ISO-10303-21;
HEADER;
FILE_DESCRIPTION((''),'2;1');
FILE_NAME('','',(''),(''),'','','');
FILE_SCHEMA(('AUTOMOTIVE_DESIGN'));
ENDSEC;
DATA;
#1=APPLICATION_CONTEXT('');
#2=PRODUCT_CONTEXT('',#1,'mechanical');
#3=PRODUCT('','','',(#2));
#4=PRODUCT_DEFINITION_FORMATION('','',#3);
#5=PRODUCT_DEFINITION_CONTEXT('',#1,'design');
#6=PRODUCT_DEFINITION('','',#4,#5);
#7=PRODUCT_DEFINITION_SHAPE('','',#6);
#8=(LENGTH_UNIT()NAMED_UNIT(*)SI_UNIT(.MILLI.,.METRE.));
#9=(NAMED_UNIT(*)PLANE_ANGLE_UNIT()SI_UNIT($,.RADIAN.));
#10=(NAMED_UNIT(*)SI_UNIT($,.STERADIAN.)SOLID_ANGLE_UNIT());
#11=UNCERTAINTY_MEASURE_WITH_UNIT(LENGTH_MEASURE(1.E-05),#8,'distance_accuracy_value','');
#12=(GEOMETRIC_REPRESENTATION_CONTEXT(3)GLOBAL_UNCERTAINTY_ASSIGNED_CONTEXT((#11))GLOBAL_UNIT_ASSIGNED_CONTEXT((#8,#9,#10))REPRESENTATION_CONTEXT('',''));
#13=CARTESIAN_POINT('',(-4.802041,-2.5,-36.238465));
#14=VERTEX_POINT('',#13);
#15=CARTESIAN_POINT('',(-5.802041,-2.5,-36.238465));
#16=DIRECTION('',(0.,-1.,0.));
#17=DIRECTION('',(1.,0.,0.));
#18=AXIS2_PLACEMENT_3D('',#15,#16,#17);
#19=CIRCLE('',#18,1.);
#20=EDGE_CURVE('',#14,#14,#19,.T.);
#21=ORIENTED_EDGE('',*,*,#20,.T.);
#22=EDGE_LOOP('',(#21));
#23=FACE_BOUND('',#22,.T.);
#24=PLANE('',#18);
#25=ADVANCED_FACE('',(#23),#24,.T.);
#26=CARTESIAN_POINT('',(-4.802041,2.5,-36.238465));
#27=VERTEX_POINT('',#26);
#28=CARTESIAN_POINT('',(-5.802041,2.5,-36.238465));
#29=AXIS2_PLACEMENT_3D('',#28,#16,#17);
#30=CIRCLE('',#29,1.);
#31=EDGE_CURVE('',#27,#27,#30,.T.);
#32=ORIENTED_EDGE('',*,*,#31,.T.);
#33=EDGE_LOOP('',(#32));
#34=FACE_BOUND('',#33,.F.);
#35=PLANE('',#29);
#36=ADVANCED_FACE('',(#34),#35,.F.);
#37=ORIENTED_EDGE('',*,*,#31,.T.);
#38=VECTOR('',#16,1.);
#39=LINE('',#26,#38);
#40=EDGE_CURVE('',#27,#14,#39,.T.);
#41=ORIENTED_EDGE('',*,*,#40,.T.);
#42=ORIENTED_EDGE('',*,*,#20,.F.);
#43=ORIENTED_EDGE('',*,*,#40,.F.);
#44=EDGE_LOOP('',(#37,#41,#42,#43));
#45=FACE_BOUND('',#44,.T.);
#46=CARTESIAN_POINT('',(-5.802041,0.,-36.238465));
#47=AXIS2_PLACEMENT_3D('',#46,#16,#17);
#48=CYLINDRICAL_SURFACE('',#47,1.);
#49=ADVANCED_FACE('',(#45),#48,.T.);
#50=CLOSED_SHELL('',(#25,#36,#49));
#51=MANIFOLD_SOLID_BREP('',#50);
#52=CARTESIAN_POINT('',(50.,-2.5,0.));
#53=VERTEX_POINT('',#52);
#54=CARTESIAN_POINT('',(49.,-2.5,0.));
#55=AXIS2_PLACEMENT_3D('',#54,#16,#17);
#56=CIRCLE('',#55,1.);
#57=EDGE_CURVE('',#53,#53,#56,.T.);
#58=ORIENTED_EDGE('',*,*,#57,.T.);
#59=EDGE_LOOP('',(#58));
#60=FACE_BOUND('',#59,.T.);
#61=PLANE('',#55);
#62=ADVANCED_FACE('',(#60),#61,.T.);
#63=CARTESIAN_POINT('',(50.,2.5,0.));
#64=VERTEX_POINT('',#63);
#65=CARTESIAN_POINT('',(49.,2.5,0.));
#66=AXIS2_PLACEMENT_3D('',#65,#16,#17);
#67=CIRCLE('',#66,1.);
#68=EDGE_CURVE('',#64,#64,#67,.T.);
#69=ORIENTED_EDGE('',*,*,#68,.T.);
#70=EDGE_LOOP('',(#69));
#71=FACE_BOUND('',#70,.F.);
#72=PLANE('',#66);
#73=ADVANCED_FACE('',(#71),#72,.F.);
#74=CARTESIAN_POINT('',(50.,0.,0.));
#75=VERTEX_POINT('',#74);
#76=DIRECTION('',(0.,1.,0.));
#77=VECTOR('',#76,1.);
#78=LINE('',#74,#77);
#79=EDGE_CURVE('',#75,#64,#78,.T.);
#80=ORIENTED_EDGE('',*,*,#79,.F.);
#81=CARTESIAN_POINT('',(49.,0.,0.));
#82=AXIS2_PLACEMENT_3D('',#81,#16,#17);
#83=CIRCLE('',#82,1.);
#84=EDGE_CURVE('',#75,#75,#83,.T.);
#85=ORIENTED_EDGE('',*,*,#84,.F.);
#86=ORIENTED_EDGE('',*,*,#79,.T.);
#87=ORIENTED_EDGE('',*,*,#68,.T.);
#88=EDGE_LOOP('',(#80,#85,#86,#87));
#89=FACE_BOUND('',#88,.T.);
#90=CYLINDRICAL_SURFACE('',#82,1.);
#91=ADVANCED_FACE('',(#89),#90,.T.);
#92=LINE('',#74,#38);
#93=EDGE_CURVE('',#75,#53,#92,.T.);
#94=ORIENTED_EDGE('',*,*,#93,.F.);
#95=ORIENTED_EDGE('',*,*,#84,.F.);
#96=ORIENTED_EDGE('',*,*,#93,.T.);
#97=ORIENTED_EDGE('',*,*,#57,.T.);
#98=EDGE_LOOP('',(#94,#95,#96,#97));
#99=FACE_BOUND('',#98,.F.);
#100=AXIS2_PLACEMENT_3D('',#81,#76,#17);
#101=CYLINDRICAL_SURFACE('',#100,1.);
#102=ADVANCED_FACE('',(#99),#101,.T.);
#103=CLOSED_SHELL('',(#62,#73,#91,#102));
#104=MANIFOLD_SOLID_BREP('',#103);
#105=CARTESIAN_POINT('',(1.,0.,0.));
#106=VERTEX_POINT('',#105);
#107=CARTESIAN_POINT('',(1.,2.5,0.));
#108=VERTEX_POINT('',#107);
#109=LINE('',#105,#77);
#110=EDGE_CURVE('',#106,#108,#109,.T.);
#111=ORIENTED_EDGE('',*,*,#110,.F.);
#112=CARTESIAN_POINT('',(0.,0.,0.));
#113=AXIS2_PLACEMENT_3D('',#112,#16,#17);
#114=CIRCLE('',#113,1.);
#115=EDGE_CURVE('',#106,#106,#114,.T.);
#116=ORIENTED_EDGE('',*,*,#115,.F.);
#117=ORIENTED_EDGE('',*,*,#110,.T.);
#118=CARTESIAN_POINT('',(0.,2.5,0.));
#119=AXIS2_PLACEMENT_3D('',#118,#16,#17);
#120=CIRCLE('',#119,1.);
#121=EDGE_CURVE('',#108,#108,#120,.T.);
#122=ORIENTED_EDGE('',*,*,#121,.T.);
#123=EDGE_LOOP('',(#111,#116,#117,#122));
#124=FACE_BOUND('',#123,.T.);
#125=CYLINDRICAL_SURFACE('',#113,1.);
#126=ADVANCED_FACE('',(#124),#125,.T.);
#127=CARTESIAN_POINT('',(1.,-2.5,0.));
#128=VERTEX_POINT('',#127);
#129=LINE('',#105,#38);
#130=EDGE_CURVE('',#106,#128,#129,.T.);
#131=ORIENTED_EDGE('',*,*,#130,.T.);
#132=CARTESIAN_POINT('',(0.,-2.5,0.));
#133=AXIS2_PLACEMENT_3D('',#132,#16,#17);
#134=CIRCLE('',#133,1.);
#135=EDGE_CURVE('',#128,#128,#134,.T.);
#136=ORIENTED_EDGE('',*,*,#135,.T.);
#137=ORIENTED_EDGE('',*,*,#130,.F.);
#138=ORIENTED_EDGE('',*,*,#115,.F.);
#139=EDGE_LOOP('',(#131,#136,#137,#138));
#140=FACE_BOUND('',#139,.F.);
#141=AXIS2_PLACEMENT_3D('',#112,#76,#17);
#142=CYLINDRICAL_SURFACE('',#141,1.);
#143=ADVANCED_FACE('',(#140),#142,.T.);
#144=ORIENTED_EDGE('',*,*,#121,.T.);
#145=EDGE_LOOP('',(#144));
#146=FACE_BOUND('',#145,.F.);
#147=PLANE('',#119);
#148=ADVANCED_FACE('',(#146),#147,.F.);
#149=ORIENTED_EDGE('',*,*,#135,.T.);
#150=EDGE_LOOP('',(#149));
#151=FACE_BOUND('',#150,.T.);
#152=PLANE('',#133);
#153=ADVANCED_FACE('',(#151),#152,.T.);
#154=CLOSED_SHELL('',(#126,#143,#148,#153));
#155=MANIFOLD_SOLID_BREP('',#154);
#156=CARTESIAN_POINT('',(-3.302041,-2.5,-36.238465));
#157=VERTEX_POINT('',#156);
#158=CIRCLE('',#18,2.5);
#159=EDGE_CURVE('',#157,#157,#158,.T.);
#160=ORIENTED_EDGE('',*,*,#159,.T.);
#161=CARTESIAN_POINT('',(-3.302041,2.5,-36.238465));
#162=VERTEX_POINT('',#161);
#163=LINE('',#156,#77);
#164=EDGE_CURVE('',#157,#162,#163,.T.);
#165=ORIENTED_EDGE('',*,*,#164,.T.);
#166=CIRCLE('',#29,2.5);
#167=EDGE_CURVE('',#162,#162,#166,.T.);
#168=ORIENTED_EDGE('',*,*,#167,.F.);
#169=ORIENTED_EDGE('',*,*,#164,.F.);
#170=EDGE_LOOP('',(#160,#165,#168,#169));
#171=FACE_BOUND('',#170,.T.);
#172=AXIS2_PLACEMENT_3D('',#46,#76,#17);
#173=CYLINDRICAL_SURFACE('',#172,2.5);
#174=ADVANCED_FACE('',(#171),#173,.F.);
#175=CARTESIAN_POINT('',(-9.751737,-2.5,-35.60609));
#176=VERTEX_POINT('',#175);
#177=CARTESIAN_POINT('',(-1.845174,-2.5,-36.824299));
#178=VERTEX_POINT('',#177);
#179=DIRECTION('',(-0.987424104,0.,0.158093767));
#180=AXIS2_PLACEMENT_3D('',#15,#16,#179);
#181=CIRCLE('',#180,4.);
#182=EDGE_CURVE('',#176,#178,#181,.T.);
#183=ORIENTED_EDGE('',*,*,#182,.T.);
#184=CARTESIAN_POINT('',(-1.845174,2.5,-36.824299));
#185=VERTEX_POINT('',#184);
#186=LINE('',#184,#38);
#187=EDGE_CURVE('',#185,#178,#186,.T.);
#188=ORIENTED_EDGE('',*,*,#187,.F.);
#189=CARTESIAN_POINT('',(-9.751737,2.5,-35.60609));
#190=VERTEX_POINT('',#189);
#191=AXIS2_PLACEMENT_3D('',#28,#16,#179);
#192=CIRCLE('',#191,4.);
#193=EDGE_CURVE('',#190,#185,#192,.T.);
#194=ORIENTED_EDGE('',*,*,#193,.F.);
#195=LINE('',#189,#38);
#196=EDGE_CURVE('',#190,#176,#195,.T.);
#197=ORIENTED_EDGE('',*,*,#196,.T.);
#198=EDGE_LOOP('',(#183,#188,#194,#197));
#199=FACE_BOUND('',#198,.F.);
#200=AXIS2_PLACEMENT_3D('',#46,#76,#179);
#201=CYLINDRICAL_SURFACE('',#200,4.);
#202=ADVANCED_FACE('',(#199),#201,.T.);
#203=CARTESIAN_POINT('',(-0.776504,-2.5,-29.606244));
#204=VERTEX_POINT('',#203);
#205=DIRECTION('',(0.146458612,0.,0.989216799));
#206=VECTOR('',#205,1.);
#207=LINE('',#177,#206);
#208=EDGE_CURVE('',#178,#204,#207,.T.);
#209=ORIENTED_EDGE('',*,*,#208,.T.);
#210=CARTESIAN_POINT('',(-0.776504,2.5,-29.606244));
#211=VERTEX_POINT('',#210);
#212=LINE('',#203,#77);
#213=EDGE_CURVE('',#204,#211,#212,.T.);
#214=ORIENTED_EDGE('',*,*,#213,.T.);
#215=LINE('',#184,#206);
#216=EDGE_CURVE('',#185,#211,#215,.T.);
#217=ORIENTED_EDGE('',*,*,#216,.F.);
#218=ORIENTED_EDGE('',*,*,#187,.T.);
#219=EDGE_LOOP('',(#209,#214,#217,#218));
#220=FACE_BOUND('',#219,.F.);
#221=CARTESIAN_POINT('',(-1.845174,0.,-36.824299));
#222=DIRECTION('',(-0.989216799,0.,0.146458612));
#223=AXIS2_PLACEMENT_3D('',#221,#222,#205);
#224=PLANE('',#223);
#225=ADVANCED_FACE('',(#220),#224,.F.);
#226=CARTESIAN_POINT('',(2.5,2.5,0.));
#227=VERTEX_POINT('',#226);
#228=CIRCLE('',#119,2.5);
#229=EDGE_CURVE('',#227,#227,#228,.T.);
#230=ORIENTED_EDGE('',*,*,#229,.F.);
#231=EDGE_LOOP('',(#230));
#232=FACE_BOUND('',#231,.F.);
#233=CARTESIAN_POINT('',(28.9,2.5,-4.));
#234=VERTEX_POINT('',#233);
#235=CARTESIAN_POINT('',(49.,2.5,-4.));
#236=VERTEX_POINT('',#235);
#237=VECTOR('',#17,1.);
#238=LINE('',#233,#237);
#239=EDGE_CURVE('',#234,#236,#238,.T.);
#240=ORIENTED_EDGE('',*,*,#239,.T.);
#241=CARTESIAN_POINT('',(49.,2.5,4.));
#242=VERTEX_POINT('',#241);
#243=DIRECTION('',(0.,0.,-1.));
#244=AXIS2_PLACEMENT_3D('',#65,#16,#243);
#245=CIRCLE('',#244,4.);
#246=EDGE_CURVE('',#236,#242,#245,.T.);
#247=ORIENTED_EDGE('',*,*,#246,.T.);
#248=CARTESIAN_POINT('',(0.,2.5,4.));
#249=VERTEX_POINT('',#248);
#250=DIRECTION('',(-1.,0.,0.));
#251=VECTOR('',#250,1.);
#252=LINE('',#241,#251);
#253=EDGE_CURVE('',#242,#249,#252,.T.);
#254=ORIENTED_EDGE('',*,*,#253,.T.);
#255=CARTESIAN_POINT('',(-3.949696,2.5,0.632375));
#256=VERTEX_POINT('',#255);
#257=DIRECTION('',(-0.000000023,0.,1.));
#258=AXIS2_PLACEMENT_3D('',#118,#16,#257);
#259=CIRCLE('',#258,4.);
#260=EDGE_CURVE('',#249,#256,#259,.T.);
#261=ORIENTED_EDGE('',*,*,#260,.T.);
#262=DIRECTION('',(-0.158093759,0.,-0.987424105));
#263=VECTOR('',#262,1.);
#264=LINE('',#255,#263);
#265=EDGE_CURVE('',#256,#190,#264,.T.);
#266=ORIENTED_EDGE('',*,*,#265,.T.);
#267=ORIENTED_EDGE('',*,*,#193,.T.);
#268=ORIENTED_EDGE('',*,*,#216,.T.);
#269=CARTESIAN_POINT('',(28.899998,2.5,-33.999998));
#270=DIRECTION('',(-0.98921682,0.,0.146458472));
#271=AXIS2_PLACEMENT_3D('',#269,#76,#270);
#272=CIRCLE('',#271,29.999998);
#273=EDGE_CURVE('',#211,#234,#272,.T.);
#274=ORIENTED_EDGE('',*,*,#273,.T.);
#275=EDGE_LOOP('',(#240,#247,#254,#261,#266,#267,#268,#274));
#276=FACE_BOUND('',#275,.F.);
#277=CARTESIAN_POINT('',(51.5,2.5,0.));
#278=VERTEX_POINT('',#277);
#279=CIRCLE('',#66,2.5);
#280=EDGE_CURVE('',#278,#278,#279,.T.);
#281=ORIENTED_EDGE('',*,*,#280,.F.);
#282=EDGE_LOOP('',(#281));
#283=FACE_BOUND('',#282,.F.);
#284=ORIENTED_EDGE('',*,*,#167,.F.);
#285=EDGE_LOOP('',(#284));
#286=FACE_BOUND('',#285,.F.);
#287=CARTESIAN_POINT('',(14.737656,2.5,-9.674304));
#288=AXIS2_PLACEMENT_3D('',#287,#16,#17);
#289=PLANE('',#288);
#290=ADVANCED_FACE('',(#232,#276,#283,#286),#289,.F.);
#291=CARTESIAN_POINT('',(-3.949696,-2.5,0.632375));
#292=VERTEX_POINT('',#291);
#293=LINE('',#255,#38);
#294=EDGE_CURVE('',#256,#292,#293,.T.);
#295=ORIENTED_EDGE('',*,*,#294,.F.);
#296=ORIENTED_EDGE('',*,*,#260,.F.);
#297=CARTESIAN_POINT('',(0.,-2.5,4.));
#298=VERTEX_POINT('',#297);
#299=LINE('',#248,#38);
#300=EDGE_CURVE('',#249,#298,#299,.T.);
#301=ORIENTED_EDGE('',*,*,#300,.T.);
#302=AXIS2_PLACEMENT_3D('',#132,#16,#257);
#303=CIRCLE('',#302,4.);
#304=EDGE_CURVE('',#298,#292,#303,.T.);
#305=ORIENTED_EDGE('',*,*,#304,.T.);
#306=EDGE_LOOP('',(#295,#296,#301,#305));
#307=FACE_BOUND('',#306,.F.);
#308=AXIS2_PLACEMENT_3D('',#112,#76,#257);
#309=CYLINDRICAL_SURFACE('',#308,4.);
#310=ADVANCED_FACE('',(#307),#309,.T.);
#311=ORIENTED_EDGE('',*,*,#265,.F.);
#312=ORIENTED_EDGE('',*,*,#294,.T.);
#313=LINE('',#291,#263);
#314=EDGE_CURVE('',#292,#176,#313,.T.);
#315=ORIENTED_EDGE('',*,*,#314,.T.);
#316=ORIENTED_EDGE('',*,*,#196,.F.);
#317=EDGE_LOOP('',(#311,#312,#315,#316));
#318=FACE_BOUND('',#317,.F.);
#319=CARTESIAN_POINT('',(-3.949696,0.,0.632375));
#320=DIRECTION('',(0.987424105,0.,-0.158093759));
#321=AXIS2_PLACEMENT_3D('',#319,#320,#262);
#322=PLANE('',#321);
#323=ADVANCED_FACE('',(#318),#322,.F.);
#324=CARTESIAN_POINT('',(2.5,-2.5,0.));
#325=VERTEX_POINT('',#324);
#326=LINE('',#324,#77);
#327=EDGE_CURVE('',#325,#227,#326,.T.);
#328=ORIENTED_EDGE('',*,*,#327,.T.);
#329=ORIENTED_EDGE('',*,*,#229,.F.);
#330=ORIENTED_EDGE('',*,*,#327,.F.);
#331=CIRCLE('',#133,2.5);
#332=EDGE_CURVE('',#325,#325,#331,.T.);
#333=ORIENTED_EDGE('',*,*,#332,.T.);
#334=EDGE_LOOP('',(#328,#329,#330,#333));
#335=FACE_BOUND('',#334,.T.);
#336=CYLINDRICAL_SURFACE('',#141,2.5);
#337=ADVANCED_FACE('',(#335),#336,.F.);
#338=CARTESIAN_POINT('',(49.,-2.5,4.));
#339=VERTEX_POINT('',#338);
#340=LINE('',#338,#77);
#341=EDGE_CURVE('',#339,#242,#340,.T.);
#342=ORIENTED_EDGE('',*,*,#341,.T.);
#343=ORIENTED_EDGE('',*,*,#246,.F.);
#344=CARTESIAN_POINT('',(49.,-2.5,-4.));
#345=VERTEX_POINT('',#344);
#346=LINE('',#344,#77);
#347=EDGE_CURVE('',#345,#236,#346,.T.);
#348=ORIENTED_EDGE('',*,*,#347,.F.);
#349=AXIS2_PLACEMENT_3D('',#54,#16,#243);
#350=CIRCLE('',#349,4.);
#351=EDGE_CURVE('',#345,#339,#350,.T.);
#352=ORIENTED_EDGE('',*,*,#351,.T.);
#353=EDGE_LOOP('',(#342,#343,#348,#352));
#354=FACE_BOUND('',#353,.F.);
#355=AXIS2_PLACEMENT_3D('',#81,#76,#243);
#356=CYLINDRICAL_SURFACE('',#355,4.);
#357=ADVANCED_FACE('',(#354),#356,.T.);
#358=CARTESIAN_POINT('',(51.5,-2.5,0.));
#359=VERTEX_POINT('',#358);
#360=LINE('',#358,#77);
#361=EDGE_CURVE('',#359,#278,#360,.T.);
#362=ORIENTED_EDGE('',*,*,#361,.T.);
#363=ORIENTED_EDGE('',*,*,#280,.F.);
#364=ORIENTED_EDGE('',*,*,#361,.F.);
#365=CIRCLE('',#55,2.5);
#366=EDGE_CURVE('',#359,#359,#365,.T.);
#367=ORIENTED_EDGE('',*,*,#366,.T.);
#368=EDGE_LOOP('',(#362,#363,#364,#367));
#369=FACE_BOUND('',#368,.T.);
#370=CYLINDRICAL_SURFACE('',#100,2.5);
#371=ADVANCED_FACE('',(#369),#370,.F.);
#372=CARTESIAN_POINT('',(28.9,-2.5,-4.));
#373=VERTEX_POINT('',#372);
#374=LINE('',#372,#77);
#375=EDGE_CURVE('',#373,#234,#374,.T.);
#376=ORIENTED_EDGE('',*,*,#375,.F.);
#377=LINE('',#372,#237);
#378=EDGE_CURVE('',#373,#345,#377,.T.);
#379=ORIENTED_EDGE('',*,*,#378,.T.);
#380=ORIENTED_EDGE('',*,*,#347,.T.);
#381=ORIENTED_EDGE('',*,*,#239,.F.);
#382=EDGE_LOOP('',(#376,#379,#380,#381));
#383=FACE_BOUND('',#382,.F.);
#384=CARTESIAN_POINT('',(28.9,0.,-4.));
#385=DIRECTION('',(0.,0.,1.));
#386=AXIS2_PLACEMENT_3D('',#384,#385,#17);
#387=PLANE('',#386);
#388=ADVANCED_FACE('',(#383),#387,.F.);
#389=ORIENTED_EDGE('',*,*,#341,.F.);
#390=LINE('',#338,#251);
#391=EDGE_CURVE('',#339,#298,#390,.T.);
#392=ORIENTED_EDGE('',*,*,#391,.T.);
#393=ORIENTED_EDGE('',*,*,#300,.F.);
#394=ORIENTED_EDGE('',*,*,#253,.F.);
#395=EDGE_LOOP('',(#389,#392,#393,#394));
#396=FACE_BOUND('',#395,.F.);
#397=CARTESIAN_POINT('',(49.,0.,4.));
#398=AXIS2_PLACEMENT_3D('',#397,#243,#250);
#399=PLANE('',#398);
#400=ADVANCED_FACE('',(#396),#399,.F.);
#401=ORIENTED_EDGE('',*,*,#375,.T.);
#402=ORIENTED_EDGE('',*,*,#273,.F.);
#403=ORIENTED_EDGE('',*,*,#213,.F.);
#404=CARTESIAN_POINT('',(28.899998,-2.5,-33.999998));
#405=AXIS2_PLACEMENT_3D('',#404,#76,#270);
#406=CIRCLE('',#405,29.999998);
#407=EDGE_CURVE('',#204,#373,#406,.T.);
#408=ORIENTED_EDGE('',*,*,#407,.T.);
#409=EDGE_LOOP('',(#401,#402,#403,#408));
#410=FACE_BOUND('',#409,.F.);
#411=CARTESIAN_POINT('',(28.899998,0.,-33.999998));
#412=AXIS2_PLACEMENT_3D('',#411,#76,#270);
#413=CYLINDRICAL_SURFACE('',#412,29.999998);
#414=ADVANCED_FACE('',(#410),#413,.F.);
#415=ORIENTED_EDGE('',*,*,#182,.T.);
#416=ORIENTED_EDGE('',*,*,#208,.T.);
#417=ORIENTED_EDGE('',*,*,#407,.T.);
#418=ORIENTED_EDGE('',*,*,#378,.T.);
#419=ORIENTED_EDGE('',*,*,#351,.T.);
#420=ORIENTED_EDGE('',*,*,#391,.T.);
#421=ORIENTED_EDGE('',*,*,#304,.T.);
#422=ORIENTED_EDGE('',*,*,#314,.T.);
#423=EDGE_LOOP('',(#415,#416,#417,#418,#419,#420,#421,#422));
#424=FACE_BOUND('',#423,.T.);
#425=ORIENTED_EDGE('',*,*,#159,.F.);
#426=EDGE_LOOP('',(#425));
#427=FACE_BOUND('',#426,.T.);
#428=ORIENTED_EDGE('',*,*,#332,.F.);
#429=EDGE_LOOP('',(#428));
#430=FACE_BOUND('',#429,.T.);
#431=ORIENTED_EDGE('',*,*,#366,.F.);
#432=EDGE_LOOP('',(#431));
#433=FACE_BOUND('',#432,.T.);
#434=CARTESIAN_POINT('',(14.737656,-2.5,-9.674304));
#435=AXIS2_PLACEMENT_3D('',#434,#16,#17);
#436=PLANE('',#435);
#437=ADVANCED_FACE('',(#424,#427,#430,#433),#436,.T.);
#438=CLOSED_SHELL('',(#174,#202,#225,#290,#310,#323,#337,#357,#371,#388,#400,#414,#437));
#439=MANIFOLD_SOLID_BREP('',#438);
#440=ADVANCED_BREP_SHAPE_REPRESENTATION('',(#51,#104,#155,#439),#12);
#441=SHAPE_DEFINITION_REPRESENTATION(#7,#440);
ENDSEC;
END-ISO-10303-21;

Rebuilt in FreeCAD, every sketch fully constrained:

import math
import FreeCAD as App
import Part
import Sketcher

V = App.Vector
Q = App.Units.Quantity

doc = App.newDocument("Part")
body = doc.addObject("PartDesign::Body", "Body")
body.AllowCompound = True

sketch1 = body.newObject("Sketcher::SketchObject", "Sketch")
sketch1.AttachmentSupport = (doc.getObject("XZ_Plane"), [""])
sketch1.MapMode = "FlatFace"
sketch1.addGeometry([
    Part.LineSegment(V(49, 4, 0), V(0, 4, 0)),
    Part.ArcOfCircle(Part.Circle(V(0, 0, 0), V(0, 0, 1), 4), math.radians(90), math.radians(171)),
    Part.LineSegment(V(-3.9, 0.6, 0), V(-9.8, -35.6, 0)),
    Part.ArcOfCircle(Part.Circle(V(-5.8, -36.2, 0), V(0, 0, 1), 4), math.radians(171), math.radians(352)),
    Part.LineSegment(V(-1.8, -36.8, 0), V(-0.8, -29.6, 0)),
    Part.ArcOfCircle(Part.Circle(V(28.9, -34, 0), V(0, 0, 1), 30), math.radians(90), math.radians(172)),
    Part.LineSegment(V(28.9, -4, 0), V(49, -4, 0)),
    Part.ArcOfCircle(Part.Circle(V(49, 0, 0), V(0, 0, 1), 4), math.radians(-90), math.radians(90)),
    Part.Circle(V(-5.8, -36.2, 0), V(0, 0, 1), 2.5),
    Part.Circle(V(0, 0, 0), V(0, 0, 1), 2.5),
    Part.Circle(V(49, 0, 0), V(0, 0, 1), 2.5),
    Part.Circle(V(49, 0, 0), V(0, 0, 1), 1),
    Part.Circle(V(0, 0, 0), V(0, 0, 1), 1),
    Part.Circle(V(-5.8, -36.2, 0), V(0, 0, 1), 1),
], False)
sketch1.addConstraint([
    Sketcher.Constraint("Tangent", 0, 2, 1, 1),
    Sketcher.Constraint("Tangent", 1, 2, 2, 1),
    Sketcher.Constraint("Tangent", 2, 2, 3, 1),
    Sketcher.Constraint("Tangent", 3, 2, 4, 1),
    Sketcher.Constraint("Tangent", 4, 2, 5, 2),
    Sketcher.Constraint("Tangent", 5, 1, 6, 1),
    Sketcher.Constraint("Tangent", 6, 2, 7, 1),
    Sketcher.Constraint("Tangent", 7, 2, 0, 1),
    Sketcher.Constraint("Horizontal", 0),
    Sketcher.Constraint("Horizontal", 6),
    Sketcher.Constraint("Coincident", 1, 3, -1, 1),
    Sketcher.Constraint("Coincident", 9, 3, -1, 1),
    Sketcher.Constraint("Coincident", 12, 3, -1, 1),
    Sketcher.Constraint("Coincident", 8, 3, 3, 3),
    Sketcher.Constraint("Coincident", 10, 3, 7, 3),
    Sketcher.Constraint("Coincident", 11, 3, 7, 3),
    Sketcher.Constraint("Coincident", 13, 3, 3, 3),
    Sketcher.Constraint("Equal", 1, 3),
    Sketcher.Constraint("Equal", 3, 7),
    Sketcher.Constraint("Equal", 8, 9),
    Sketcher.Constraint("Equal", 9, 10),
    Sketcher.Constraint("Equal", 11, 12),
    Sketcher.Constraint("Equal", 12, 13),
    Sketcher.Constraint("Diameter", 8, Q("5 mm")),
    Sketcher.Constraint("Diameter", 11, Q("2 mm")),
    Sketcher.Constraint("Radius", 1, Q("4 mm")),
    Sketcher.Constraint("DistanceX", 0, 2, 0, 1, Q("49 mm")),
    Sketcher.Constraint("DistanceX", 6, 1, 6, 2, Q("20.1 mm")),
    Sketcher.Constraint("DistanceY", 5, 3, 1, 3, Q("33.999998 mm")),
    Sketcher.Constraint("Distance", 2, Q("36.7 mm")),
    Sketcher.Constraint("DistanceY", 3, 2, -1, 1, Q("36.824299 mm")),
])
pad1 = body.newObject("PartDesign::Pad", "Pad")
pad1.Profile = sketch1
pad1.Length = 5
pad1.Midplane = True

doc.recompute()
